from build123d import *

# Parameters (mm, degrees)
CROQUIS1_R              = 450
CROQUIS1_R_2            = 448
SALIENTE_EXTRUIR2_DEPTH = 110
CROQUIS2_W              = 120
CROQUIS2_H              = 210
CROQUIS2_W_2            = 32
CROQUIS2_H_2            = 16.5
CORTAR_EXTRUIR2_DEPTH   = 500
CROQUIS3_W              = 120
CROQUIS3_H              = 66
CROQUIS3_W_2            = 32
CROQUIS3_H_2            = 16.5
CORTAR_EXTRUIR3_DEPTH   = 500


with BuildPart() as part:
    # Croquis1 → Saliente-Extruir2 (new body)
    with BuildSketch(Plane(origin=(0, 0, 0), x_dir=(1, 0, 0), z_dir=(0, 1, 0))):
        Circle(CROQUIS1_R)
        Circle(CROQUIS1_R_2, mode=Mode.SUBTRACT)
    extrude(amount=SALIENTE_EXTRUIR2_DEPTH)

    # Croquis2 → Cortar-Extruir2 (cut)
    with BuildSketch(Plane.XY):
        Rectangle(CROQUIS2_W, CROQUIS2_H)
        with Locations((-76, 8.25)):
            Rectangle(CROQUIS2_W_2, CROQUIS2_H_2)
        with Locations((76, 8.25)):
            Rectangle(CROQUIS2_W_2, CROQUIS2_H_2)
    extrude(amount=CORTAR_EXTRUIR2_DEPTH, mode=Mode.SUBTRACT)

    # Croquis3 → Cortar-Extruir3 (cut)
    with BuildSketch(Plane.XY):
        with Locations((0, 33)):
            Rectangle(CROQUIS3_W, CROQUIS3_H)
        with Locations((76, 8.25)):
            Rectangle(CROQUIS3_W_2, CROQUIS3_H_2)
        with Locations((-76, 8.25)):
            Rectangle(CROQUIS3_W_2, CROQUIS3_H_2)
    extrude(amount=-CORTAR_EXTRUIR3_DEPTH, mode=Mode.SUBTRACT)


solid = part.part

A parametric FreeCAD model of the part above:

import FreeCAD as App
import Part
import Sketcher
Q = App.Units.Quantity


def add_polygon(sketch, points):
    """Adds a closed chain of lines whose ends are joined by coincident constraints."""
    first, n = sketch.GeometryCount, len(points)
    for a, b in zip(points, points[1:] + points[:1]):
        sketch.addGeometry(Part.LineSegment(App.Vector(*a, 0), App.Vector(*b, 0)), False)
    for i in range(n):
        sketch.addConstraint(Sketcher.Constraint("Coincident", first + i, 2, first + (i + 1) % n, 1))

doc = App.newDocument("Part")
body = doc.addObject("PartDesign::Body", "Body")

sketch1 = body.newObject("Sketcher::SketchObject", "Sketch")
sketch1.AttachmentSupport = (doc.getObject("XZ_Plane"), [""])
sketch1.MapMode = "FlatFace"
sketch1.addGeometry(Part.Circle(App.Vector(0, 0, 0), App.Vector(0, 0, 1), 450), False)
sketch1.addGeometry(Part.Circle(App.Vector(0, 0, 0), App.Vector(0, 0, 1), 448), False)
sketch1.addConstraint(Sketcher.Constraint("Coincident", 0, 3, -1, 1))
sketch1.addConstraint(Sketcher.Constraint("Coincident", 1, 3, -1, 1))
sketch1.addConstraint(Sketcher.Constraint("Diameter", 0, Q("900 mm")))
sketch1.addConstraint(Sketcher.Constraint("Diameter", 1, Q("896 mm")))
pad1 = body.newObject("PartDesign::Pad", "Pad")
pad1.Profile = sketch1
pad1.Length = 110
pad1.Reversed = True

sketch2 = body.newObject("Sketcher::SketchObject", "Sketch001")
sketch2.AttachmentSupport = (doc.getObject("XY_Plane"), [""])
sketch2.MapMode = "FlatFace"
add_polygon(sketch2, [(-60, 0), (-60, -105), (60, -105), (60, 0), (92, 0), (92, 16), (60, 16), (60, 105), (-60, 105), (-60, 16), (-92, 16), (-92, 0)])
sketch2.addConstraint(Sketcher.Constraint("Vertical", 0))
sketch2.addConstraint(Sketcher.Constraint("Horizontal", 1))
sketch2.addConstraint(Sketcher.Constraint("Vertical", 2))
sketch2.addConstraint(Sketcher.Constraint("Horizontal", 3))
sketch2.addConstraint(Sketcher.Constraint("Vertical", 4))
sketch2.addConstraint(Sketcher.Constraint("Horizontal", 5))
sketch2.addConstraint(Sketcher.Constraint("Vertical", 6))
sketch2.addConstraint(Sketcher.Constraint("Horizontal", 7))
sketch2.addConstraint(Sketcher.Constraint("Vertical", 8))
sketch2.addConstraint(Sketcher.Constraint("Horizontal", 9))
sketch2.addConstraint(Sketcher.Constraint("Vertical", 10))
sketch2.addConstraint(Sketcher.Constraint("Horizontal", 11))
sketch2.addConstraint(Sketcher.Constraint("Symmetric", 0, 2, 6, 2, -1, 1))
sketch2.addConstraint(Sketcher.Constraint("Symmetric", 3, 2, 10, 2, -1, 1))
sketch2.addConstraint(Sketcher.Constraint("Symmetric", 5, 2, 8, 2, -2))
sketch2.addConstraint(Sketcher.Constraint("Symmetric", 2, 2, 11, 2, -2))
sketch2.addConstraint(Sketcher.Constraint("DistanceX", 1, 1, 1, 2, Q("120 mm")))
sketch2.addConstraint(Sketcher.Constraint("DistanceX", 3, 1, 3, 2, Q("32 mm")))
sketch2.addConstraint(Sketcher.Constraint("DistanceY", 0, 2, 0, 1, Q("105 mm")))
sketch2.addConstraint(Sketcher.Constraint("DistanceY", 4, 1, 4, 2, Q("16.5 mm")))
pocket1 = body.newObject("PartDesign::Pocket", "Pocket")
pocket1.Profile = sketch2
pocket1.Length = 500
pocket1.Reversed = True

sketch3 = body.newObject("Sketcher::SketchObject", "Sketch002")
sketch3.AttachmentSupport = (doc.getObject("XY_Plane"), [""])
sketch3.MapMode = "FlatFace"
add_polygon(sketch3, [(-60, 66), (-60, 16), (-92, 16), (-92, 0), (92, 0), (92, 16), (60, 16), (60, 66)])
sketch3.addConstraint(Sketcher.Constraint("Vertical", 0))
sketch3.addConstraint(Sketcher.Constraint("Horizontal", 1))
sketch3.addConstraint(Sketcher.Constraint("Vertical", 2))
sketch3.addConstraint(Sketcher.Constraint("Horizontal", 3))
sketch3.addConstraint(Sketcher.Constraint("Vertical", 4))
sketch3.addConstraint(Sketcher.Constraint("Horizontal", 5))
sketch3.addConstraint(Sketcher.Constraint("Vertical", 6))
sketch3.addConstraint(Sketcher.Constraint("Horizontal", 7))
sketch3.addConstraint(Sketcher.Constraint("Symmetric", 2, 2, 3, 2, -1, 1))
sketch3.addConstraint(Sketcher.Constraint("Symmetric", 0, 2, 5, 2, -2))
sketch3.addConstraint(Sketcher.Constraint("DistanceX", 1, 2, 1, 1, Q("32 mm")))
sketch3.addConstraint(Sketcher.Constraint("DistanceX", 3, 1, 3, 2, Q("184 mm")))
sketch3.addConstraint(Sketcher.Constraint("DistanceY", 0, 2, 0, 1, Q("49.5 mm")))
sketch3.addConstraint(Sketcher.Constraint("DistanceY", 2, 2, 2, 1, Q("16.5 mm")))
pocket2 = body.newObject("PartDesign::Pocket", "Pocket001")
pocket2.Profile = sketch3
pocket2.Length = 500

doc.recompute()
